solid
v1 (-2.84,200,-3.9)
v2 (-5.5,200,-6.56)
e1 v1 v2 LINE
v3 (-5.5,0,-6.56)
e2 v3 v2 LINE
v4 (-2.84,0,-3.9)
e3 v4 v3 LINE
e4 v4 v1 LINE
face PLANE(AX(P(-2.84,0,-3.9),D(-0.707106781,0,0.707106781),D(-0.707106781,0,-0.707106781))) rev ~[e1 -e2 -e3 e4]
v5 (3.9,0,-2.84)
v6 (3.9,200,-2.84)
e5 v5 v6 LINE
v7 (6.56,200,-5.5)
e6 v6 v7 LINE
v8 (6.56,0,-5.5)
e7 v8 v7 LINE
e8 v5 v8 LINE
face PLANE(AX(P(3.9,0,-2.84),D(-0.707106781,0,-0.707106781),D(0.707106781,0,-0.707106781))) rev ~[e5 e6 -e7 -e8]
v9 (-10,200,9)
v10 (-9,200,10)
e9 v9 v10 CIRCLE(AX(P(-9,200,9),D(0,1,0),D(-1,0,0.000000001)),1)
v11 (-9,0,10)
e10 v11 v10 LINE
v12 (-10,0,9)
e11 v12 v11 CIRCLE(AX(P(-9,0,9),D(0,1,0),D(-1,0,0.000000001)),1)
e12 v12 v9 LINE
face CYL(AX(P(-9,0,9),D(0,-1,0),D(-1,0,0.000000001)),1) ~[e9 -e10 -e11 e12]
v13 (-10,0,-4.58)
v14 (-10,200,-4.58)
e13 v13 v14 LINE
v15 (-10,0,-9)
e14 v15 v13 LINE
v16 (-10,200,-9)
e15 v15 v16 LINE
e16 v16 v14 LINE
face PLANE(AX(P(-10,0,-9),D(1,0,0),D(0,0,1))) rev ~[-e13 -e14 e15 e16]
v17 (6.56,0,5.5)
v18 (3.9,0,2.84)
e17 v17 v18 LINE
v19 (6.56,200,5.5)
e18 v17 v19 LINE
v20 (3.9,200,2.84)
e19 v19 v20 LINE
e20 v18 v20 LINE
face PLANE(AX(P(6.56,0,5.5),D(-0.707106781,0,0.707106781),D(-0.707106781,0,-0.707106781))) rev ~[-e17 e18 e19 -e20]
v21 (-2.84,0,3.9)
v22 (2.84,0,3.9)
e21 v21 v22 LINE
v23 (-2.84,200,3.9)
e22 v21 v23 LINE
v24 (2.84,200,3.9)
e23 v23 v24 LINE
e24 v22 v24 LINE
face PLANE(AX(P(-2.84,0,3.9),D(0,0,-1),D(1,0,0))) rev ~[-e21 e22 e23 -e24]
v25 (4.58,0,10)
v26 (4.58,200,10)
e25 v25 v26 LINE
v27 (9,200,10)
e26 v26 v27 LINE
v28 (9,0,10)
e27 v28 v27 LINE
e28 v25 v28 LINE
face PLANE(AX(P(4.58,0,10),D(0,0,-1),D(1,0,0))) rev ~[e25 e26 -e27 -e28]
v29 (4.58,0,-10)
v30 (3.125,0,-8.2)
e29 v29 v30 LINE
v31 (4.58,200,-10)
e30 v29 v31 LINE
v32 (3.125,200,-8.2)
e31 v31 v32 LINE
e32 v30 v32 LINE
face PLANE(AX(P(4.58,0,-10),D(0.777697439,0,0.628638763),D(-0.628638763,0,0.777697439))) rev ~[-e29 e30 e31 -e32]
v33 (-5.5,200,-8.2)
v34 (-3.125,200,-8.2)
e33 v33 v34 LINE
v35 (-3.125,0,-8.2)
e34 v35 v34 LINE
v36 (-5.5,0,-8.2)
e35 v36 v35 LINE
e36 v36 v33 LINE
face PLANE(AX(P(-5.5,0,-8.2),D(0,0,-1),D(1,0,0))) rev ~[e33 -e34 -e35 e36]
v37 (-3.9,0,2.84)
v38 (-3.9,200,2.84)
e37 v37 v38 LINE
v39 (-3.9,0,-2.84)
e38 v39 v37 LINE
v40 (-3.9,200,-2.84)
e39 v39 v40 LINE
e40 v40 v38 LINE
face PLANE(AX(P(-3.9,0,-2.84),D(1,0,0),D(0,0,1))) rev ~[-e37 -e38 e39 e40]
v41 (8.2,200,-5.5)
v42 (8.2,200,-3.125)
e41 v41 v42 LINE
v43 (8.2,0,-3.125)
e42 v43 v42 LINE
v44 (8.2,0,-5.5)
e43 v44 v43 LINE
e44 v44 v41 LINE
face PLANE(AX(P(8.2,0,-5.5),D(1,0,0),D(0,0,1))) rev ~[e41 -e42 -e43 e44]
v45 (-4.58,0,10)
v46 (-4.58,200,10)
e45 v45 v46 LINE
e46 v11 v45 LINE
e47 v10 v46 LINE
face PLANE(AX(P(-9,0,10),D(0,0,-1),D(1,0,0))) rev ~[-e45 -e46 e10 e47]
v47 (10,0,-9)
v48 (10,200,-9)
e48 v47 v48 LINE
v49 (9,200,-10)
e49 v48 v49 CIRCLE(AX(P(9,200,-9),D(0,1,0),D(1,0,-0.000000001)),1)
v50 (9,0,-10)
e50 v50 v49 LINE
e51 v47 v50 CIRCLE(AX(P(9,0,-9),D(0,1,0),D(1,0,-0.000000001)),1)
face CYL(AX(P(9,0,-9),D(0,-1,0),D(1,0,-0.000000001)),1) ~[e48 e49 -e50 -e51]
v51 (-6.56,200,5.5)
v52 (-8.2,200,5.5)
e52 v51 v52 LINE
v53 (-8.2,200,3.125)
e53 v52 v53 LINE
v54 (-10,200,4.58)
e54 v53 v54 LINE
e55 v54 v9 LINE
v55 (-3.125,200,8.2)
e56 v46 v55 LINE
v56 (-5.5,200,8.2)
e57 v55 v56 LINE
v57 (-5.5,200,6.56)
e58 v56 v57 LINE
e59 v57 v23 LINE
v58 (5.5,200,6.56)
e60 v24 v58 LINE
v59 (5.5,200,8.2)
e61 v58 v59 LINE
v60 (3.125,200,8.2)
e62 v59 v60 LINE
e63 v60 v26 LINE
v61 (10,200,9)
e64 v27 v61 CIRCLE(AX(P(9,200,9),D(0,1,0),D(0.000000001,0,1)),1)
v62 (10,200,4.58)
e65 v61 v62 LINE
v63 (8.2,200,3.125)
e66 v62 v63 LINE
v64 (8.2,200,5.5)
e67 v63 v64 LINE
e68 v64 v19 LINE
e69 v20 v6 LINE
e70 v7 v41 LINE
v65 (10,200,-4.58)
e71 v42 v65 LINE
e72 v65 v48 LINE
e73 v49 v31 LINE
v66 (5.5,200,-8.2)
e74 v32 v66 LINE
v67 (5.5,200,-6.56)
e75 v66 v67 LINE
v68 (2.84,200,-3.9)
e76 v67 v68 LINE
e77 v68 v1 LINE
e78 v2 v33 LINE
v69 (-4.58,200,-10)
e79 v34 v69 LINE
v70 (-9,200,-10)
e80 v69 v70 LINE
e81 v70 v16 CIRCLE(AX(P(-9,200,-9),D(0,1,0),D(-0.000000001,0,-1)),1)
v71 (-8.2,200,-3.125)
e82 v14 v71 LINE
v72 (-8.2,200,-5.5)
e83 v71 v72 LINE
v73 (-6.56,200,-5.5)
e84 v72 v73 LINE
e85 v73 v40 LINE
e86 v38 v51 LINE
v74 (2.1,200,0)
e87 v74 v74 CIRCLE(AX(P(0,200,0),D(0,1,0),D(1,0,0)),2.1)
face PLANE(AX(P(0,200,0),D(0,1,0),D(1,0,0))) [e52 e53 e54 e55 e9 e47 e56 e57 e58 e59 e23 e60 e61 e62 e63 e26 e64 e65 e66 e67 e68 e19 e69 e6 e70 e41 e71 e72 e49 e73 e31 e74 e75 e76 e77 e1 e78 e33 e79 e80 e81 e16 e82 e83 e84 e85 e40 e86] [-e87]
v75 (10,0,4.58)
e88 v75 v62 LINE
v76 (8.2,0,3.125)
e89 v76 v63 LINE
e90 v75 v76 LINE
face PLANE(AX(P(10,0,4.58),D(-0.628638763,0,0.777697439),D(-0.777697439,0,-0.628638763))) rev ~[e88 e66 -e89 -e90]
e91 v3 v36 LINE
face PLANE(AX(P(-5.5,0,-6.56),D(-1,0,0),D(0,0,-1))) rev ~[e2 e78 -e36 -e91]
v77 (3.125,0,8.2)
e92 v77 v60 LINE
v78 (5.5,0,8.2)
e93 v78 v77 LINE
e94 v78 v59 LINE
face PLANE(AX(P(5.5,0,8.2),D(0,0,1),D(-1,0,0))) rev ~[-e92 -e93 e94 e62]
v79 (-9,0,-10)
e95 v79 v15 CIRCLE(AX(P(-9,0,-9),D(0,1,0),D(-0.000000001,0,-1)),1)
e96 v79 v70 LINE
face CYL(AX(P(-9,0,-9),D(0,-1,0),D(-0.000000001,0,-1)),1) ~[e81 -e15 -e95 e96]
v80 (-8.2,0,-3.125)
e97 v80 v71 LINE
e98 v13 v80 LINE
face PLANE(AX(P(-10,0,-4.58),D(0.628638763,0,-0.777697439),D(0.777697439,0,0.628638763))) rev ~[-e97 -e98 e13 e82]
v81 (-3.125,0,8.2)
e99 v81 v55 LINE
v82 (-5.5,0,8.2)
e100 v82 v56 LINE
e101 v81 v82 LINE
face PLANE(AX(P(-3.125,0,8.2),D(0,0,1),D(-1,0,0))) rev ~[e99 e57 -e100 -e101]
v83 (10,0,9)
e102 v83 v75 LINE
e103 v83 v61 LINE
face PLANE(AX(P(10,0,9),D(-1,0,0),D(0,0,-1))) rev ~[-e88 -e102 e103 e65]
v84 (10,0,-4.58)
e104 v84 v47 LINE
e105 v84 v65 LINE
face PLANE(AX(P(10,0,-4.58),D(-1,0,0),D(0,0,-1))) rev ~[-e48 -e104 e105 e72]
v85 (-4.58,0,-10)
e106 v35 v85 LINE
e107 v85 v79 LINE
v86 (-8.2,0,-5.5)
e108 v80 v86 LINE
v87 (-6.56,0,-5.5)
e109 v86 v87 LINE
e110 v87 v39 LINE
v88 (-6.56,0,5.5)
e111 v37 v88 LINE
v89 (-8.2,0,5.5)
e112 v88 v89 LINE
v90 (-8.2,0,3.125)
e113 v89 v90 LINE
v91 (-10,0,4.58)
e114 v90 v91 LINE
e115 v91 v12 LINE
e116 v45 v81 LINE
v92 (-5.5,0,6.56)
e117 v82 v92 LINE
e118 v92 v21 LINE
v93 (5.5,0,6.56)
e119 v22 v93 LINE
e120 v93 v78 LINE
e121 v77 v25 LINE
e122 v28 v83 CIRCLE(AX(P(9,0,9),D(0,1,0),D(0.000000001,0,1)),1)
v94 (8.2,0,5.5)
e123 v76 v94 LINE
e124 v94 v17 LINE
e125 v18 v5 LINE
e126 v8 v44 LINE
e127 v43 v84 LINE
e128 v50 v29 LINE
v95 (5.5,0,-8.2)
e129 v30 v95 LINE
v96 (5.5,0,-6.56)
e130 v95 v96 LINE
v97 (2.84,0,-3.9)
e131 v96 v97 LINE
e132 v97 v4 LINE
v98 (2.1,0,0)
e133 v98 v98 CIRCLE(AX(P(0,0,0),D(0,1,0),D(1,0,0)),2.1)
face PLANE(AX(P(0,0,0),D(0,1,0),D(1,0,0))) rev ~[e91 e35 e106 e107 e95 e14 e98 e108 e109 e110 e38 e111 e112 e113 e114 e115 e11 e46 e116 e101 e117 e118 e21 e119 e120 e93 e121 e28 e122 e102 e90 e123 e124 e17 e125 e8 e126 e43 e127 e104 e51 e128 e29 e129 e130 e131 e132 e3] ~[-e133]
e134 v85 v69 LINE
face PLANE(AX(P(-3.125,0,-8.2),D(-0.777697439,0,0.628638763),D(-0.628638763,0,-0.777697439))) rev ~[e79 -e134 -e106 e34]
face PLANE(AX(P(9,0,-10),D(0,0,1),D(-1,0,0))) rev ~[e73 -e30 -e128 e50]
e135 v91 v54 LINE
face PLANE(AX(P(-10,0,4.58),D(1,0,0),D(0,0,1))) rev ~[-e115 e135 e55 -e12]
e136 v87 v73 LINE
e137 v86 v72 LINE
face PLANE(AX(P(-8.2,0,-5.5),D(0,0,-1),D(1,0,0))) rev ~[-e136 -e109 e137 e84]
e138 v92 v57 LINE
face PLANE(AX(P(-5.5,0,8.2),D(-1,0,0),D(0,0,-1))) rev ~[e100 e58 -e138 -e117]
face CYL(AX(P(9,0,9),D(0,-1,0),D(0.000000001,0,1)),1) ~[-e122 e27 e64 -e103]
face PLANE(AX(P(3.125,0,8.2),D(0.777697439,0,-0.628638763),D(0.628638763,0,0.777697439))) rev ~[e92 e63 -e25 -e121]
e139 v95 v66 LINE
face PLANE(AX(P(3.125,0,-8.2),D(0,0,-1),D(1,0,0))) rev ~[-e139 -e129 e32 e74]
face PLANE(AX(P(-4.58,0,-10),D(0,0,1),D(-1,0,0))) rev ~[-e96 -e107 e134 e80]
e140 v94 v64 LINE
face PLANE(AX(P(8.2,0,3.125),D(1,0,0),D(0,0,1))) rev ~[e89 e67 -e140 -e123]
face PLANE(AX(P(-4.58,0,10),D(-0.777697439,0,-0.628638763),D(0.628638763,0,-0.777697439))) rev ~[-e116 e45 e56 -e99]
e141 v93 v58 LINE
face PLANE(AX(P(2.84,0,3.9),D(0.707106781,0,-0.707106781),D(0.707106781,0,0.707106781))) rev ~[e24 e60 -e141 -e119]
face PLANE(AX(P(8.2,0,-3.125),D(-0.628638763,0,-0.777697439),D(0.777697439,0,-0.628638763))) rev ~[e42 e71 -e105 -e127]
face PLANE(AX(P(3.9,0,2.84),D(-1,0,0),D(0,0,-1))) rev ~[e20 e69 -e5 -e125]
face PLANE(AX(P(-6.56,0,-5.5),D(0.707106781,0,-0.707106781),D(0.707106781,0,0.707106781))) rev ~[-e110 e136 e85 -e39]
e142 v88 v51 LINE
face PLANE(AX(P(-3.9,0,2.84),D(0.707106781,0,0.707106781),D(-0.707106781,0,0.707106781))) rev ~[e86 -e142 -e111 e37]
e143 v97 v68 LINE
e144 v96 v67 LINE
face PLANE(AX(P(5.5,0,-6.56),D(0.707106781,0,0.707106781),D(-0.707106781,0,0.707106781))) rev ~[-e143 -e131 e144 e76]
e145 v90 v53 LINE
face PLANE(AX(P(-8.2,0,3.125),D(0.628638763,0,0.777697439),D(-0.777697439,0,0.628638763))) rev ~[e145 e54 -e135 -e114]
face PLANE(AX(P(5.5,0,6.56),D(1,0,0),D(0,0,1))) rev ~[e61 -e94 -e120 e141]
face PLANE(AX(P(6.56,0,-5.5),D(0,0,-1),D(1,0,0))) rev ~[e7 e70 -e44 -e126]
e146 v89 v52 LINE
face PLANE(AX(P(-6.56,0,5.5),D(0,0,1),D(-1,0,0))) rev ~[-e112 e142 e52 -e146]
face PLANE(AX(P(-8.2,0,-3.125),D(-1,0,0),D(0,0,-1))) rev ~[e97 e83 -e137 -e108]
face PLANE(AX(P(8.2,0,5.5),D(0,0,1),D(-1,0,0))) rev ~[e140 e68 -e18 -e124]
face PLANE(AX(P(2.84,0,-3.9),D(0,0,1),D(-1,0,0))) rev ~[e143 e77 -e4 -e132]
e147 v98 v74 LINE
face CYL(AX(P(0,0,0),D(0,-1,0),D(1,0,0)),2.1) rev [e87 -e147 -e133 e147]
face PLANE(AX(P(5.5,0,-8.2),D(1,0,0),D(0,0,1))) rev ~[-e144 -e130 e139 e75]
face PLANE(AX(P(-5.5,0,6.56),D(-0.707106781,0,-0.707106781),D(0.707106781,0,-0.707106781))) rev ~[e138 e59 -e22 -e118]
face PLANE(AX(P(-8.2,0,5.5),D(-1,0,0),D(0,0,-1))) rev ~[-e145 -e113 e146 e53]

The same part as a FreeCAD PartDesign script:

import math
import FreeCAD as App
import Part
import Sketcher

V = App.Vector

doc = App.newDocument("Part")
body = doc.addObject("PartDesign::Body", "Body")

# Sketch on XZ plane
sketch1 = body.newObject("Sketcher::SketchObject", "Sketch")
sketch1.AttachmentSupport = (doc.getObject("XZ_Plane"), [""])
sketch1.MapMode = "FlatFace"
sketch1.addGeometry([
    Part.LineSegment(V(-5.5, -8.2, 0), V(-3.1, -8.2, 0)),  # 0
    Part.LineSegment(V(-3.1, -8.2, 0), V(-4.6, -10, 0)),  # 1
    Part.LineSegment(V(-4.6, -10, 0), V(-9, -10, 0)),  # 2
    Part.ArcOfCircle(Part.Circle(V(-9, -9, 0), V(0, 0, 1), 1), math.radians(-180), math.radians(-90)),  # 3
    Part.LineSegment(V(-10, -9, 0), V(-10, -4.6, 0)),  # 4
    Part.LineSegment(V(-10, -4.6, 0), V(-8.2, -3.1, 0)),  # 5
    Part.LineSegment(V(-8.2, -3.1, 0), V(-8.2, -5.5, 0)),  # 6
    Part.LineSegment(V(-8.2, -5.5, 0), V(-6.6, -5.5, 0)),  # 7
    Part.LineSegment(V(-6.6, -5.5, 0), V(-3.9, -2.8, 0)),  # 8
    Part.LineSegment(V(-3.9, -2.8, 0), V(-3.9, 2.8, 0)),  # 9
    Part.LineSegment(V(-3.9, 2.8, 0), V(-6.6, 5.5, 0)),  # 10
    Part.LineSegment(V(-6.6, 5.5, 0), V(-8.2, 5.5, 0)),  # 11
    Part.LineSegment(V(-8.2, 5.5, 0), V(-8.2, 3.1, 0)),  # 12
    Part.LineSegment(V(-8.2, 3.1, 0), V(-10, 4.6, 0)),  # 13
    Part.LineSegment(V(-10, 4.6, 0), V(-10, 9, 0)),  # 14
    Part.ArcOfCircle(Part.Circle(V(-9, 9, 0), V(0, 0, 1), 1), math.radians(90), math.radians(180)),  # 15
    Part.LineSegment(V(-9, 10, 0), V(-4.6, 10, 0)),  # 16
    Part.LineSegment(V(-4.6, 10, 0), V(-3.1, 8.2, 0)),  # 17
    Part.LineSegment(V(-3.1, 8.2, 0), V(-5.5, 8.2, 0)),  # 18
    Part.LineSegment(V(-5.5, 8.2, 0), V(-5.5, 6.6, 0)),  # 19
    Part.LineSegment(V(-5.5, 6.6, 0), V(-2.8, 3.9, 0)),  # 20
    Part.LineSegment(V(-2.8, 3.9, 0), V(2.8, 3.9, 0)),  # 21
    Part.LineSegment(V(2.8, 3.9, 0), V(5.5, 6.6, 0)),  # 22
    Part.LineSegment(V(5.5, 6.6, 0), V(5.5, 8.2, 0)),  # 23
    Part.LineSegment(V(5.5, 8.2, 0), V(3.1, 8.2, 0)),  # 24
    Part.LineSegment(V(3.1, 8.2, 0), V(4.6, 10, 0)),  # 25
    Part.LineSegment(V(4.6, 10, 0), V(9, 10, 0)),  # 26
    Part.ArcOfCircle(Part.Circle(V(9, 9, 0), V(0, 0, 1), 1), math.radians(0), math.radians(90)),  # 27
    Part.LineSegment(V(10, 9, 0), V(10, 4.6, 0)),  # 28
    Part.LineSegment(V(10, 4.6, 0), V(8.2, 3.1, 0)),  # 29
    Part.LineSegment(V(8.2, 3.1, 0), V(8.2, 5.5, 0)),  # 30
    Part.LineSegment(V(8.2, 5.5, 0), V(6.6, 5.5, 0)),  # 31
    Part.LineSegment(V(6.6, 5.5, 0), V(3.9, 2.8, 0)),  # 32
    Part.LineSegment(V(3.9, 2.8, 0), V(3.9, -2.8, 0)),  # 33
    Part.LineSegment(V(3.9, -2.8, 0), V(6.6, -5.5, 0)),  # 34
    Part.LineSegment(V(6.6, -5.5, 0), V(8.2, -5.5, 0)),  # 35
    Part.LineSegment(V(8.2, -5.5, 0), V(8.2, -3.1, 0)),  # 36
    Part.LineSegment(V(8.2, -3.1, 0), V(10, -4.6, 0)),  # 37
    Part.LineSegment(V(10, -4.6, 0), V(10, -9, 0)),  # 38
    Part.ArcOfCircle(Part.Circle(V(9, -9, 0), V(0, 0, 1), 1), math.radians(-90), math.radians(0)),  # 39
    Part.LineSegment(V(9, -10, 0), V(4.6, -10, 0)),  # 40
    Part.LineSegment(V(4.6, -10, 0), V(3.1, -8.2, 0)),  # 41
    Part.LineSegment(V(3.1, -8.2, 0), V(5.5, -8.2, 0)),  # 42
    Part.LineSegment(V(5.5, -8.2, 0), V(5.5, -6.6, 0)),  # 43
    Part.LineSegment(V(5.5, -6.6, 0), V(2.8, -3.9, 0)),  # 44
    Part.LineSegment(V(2.8, -3.9, 0), V(-2.8, -3.9, 0)),  # 45
    Part.LineSegment(V(-2.8, -3.9, 0), V(-5.5, -6.6, 0)),  # 46
    Part.LineSegment(V(-5.5, -6.6, 0), V(-5.5, -8.2, 0)),  # 47
    Part.Circle(V(0, 0, 0), V(0, 0, 1), 2.1),  # 48
], False)
sketch1.addConstraint([
    Sketcher.Constraint("Coincident", 0, 2, 1, 1),
    Sketcher.Constraint("Coincident", 1, 2, 2, 1),
    Sketcher.Constraint("Tangent", 2, 2, 3, 2),
    Sketcher.Constraint("Tangent", 3, 1, 4, 1),
    Sketcher.Constraint("Coincident", 4, 2, 5, 1),
    Sketcher.Constraint("Coincident", 5, 2, 6, 1),
    Sketcher.Constraint("Coincident", 6, 2, 7, 1),
    Sketcher.Constraint("Coincident", 7, 2, 8, 1),
    Sketcher.Constraint("Coincident", 8, 2, 9, 1),
    Sketcher.Constraint("Coincident", 9, 2, 10, 1),
    Sketcher.Constraint("Coincident", 10, 2, 11, 1),
    Sketcher.Constraint("Coincident", 11, 2, 12, 1),
    Sketcher.Constraint("Coincident", 12, 2, 13, 1),
    Sketcher.Constraint("Coincident", 13, 2, 14, 1),
    Sketcher.Constraint("Tangent", 14, 2, 15, 2),
    Sketcher.Constraint("Tangent", 15, 1, 16, 1),
    Sketcher.Constraint("Coincident", 16, 2, 17, 1),
    Sketcher.Constraint("Coincident", 17, 2, 18, 1),
    Sketcher.Constraint("Coincident", 18, 2, 19, 1),
    Sketcher.Constraint("Coincident", 19, 2, 20, 1),
    Sketcher.Constraint("Coincident", 20, 2, 21, 1),
    Sketcher.Constraint("Coincident", 21, 2, 22, 1),
    Sketcher.Constraint("Coincident", 22, 2, 23, 1),
    Sketcher.Constraint("Coincident", 23, 2, 24, 1),
    Sketcher.Constraint("Coincident", 24, 2, 25, 1),
    Sketcher.Constraint("Coincident", 25, 2, 26, 1),
    Sketcher.Constraint("Tangent", 26, 2, 27, 2),
    Sketcher.Constraint("Tangent", 27, 1, 28, 1),
    Sketcher.Constraint("Coincident", 28, 2, 29, 1),
    Sketcher.Constraint("Coincident", 29, 2, 30, 1),
    Sketcher.Constraint("Coincident", 30, 2, 31, 1),
    Sketcher.Constraint("Coincident", 31, 2, 32, 1),
    Sketcher.Constraint("Coincident", 32, 2, 33, 1),
    Sketcher.Constraint("Coincident", 33, 2, 34, 1),
    Sketcher.Constraint("Coincident", 34, 2, 35, 1),
    Sketcher.Constraint("Coincident", 35, 2, 36, 1),
    Sketcher.Constraint("Coincident", 36, 2, 37, 1),
    Sketcher.Constraint("Coincident", 37, 2, 38, 1),
    Sketcher.Constraint("Tangent", 38, 2, 39, 2),
    Sketcher.Constraint("Tangent", 39, 1, 40, 1),
    Sketcher.Constraint("Coincident", 40, 2, 41, 1),
    Sketcher.Constraint("Coincident", 41, 2, 42, 1),
    Sketcher.Constraint("Coincident", 42, 2, 43, 1),
    Sketcher.Constraint("Coincident", 43, 2, 44, 1),
    Sketcher.Constraint("Coincident", 44, 2, 45, 1),
    Sketcher.Constraint("Coincident", 45, 2, 46, 1),
    Sketcher.Constraint("Coincident", 46, 2, 47, 1),
    Sketcher.Constraint("Coincident", 47, 2, 0, 1),
    Sketcher.Constraint("Horizontal", 0),
    Sketcher.Constraint("Horizontal", 2),
    Sketcher.Constraint("Vertical", 4),
    Sketcher.Constraint("Vertical", 6),
    Sketcher.Constraint("Horizontal", 7),
    Sketcher.Constraint("Vertical", 9),
    Sketcher.Constraint("Horizontal", 11),
    Sketcher.Constraint("Vertical", 12),
    Sketcher.Constraint("Vertical", 14),
    Sketcher.Constraint("Horizontal", 16),
    Sketcher.Constraint("Horizontal", 18),
    Sketcher.Constraint("Vertical", 19),
    Sketcher.Constraint("Horizontal", 21),
    Sketcher.Constraint("Vertical", 23),
    Sketcher.Constraint("Horizontal", 24),
    Sketcher.Constraint("Horizontal", 26),
    Sketcher.Constraint("Vertical", 28),
    Sketcher.Constraint("Vertical", 30),
    Sketcher.Constraint("Horizontal", 31),
    Sketcher.Constraint("Vertical", 33),
    Sketcher.Constraint("Horizontal", 35),
    Sketcher.Constraint("Vertical", 36),
    Sketcher.Constraint("Vertical", 38),
    Sketcher.Constraint("Horizontal", 40),
    Sketcher.Constraint("Horizontal", 42),
    Sketcher.Constraint("Vertical", 43),
    Sketcher.Constraint("Horizontal", 45),
    Sketcher.Constraint("Vertical", 47),
    Sketcher.Constraint("Coincident", 48, 3, -1, 1),
    Sketcher.Constraint("Equal", 3, 15),
    Sketcher.Constraint("Equal", 15, 27),
    Sketcher.Constraint("Equal", 27, 39),
    Sketcher.Constraint("Symmetric", 3, 3, 27, 3, -1, 1),
    Sketcher.Constraint("Symmetric", 15, 3, 39, 3, -1, 1),
    Sketcher.Constraint("Symmetric", 0, 2, 24, 2, -1, 1),
    Sketcher.Constraint("Symmetric", 5, 2, 29, 2, -1, 1),
    Sketcher.Constraint("Symmetric", 7, 2, 31, 2, -1, 1),
    Sketcher.Constraint("Symmetric", 8, 2, 32, 2, -1, 1),
    Sketcher.Constraint("Symmetric", 10, 2, 34, 2, -1, 1),
    Sketcher.Constraint("Symmetric", 12, 2, 36, 2, -1, 1),
    Sketcher.Constraint("Symmetric", 17, 2, 41, 2, -1, 1),
    Sketcher.Constraint("Symmetric", 19, 2, 43, 2, -1, 1),
    Sketcher.Constraint("Symmetric", 20, 2, 44, 2, -1, 1),
    Sketcher.Constraint("Symmetric", 22, 2, 46, 2, -1, 1),
    Sketcher.Constraint("Symmetric", 15, 3, 27, 3, -2),
    Sketcher.Constraint("Symmetric", 19, 2, 22, 2, -2),
    Sketcher.Constraint("Symmetric", 17, 2, 24, 2, -2),
    Sketcher.Constraint("Symmetric", 12, 2, 29, 2, -2),
    Sketcher.Constraint("Symmetric", 10, 2, 31, 2, -2),
    Sketcher.Constraint("Perpendicular", 8, 10),
    Sketcher.Constraint("Perpendicular", 1, 13),
    Sketcher.Constraint("Perpendicular", 5, 17),
    Sketcher.Constraint("Parallel", 10, 20),
    Sketcher.Constraint("Perpendicular", 20, 22),
    Sketcher.Constraint("Perpendicular", 13, 25),
    Sketcher.Constraint("Perpendicular", 17, 29),
    Sketcher.Constraint("Perpendicular", 32, 34),
    Sketcher.Constraint("Perpendicular", 25, 37),
    Sketcher.Constraint("Perpendicular", 29, 41),
    Sketcher.Constraint("Perpendicular", 44, 46),
    Sketcher.Constraint("Horizontal", 13, 2, 28, 2),
    Sketcher.Constraint("Horizontal", 9, 2, 32, 2),
    Sketcher.Constraint("Equal", 40, 4),
    Sketcher.Constraint("Equal", 42, 6),
    Sketcher.Constraint("Equal", 45, 9),
    Sketcher.Constraint("Equal", 35, 19),
    Sketcher.Constraint("Equal", 1, 5),
    Sketcher.Constraint("Equal", 10, 20),
    Sketcher.Constraint("Radius", 3, 1.0),
    Sketcher.Constraint("Diameter", 48, 4.2),
    Sketcher.Constraint("DistanceX", 3, 3, -1, 1, 9.0),
    Sketcher.Constraint("DistanceX", 2, 2, 2, 1, 4.42),
    Sketcher.Constraint("DistanceX", 7, 1, 7, 2, 1.64),
    Sketcher.Constraint("DistanceX", 21, 1, 21, 2, 5.68),
    Sketcher.Constraint("DistanceY", 0, 2, -1, 1, 8.2),
    Sketcher.Constraint("DistanceY", 6, 2, -1, 1, 5.5),
    Sketcher.Constraint("DistanceX", 0, 1, 0, 2, 2.375),
])
pad1 = body.newObject("PartDesign::Pad", "Pad")
pad1.Profile = sketch1
pad1.Length = 200
pad1.Reversed = True

doc.recompute()
